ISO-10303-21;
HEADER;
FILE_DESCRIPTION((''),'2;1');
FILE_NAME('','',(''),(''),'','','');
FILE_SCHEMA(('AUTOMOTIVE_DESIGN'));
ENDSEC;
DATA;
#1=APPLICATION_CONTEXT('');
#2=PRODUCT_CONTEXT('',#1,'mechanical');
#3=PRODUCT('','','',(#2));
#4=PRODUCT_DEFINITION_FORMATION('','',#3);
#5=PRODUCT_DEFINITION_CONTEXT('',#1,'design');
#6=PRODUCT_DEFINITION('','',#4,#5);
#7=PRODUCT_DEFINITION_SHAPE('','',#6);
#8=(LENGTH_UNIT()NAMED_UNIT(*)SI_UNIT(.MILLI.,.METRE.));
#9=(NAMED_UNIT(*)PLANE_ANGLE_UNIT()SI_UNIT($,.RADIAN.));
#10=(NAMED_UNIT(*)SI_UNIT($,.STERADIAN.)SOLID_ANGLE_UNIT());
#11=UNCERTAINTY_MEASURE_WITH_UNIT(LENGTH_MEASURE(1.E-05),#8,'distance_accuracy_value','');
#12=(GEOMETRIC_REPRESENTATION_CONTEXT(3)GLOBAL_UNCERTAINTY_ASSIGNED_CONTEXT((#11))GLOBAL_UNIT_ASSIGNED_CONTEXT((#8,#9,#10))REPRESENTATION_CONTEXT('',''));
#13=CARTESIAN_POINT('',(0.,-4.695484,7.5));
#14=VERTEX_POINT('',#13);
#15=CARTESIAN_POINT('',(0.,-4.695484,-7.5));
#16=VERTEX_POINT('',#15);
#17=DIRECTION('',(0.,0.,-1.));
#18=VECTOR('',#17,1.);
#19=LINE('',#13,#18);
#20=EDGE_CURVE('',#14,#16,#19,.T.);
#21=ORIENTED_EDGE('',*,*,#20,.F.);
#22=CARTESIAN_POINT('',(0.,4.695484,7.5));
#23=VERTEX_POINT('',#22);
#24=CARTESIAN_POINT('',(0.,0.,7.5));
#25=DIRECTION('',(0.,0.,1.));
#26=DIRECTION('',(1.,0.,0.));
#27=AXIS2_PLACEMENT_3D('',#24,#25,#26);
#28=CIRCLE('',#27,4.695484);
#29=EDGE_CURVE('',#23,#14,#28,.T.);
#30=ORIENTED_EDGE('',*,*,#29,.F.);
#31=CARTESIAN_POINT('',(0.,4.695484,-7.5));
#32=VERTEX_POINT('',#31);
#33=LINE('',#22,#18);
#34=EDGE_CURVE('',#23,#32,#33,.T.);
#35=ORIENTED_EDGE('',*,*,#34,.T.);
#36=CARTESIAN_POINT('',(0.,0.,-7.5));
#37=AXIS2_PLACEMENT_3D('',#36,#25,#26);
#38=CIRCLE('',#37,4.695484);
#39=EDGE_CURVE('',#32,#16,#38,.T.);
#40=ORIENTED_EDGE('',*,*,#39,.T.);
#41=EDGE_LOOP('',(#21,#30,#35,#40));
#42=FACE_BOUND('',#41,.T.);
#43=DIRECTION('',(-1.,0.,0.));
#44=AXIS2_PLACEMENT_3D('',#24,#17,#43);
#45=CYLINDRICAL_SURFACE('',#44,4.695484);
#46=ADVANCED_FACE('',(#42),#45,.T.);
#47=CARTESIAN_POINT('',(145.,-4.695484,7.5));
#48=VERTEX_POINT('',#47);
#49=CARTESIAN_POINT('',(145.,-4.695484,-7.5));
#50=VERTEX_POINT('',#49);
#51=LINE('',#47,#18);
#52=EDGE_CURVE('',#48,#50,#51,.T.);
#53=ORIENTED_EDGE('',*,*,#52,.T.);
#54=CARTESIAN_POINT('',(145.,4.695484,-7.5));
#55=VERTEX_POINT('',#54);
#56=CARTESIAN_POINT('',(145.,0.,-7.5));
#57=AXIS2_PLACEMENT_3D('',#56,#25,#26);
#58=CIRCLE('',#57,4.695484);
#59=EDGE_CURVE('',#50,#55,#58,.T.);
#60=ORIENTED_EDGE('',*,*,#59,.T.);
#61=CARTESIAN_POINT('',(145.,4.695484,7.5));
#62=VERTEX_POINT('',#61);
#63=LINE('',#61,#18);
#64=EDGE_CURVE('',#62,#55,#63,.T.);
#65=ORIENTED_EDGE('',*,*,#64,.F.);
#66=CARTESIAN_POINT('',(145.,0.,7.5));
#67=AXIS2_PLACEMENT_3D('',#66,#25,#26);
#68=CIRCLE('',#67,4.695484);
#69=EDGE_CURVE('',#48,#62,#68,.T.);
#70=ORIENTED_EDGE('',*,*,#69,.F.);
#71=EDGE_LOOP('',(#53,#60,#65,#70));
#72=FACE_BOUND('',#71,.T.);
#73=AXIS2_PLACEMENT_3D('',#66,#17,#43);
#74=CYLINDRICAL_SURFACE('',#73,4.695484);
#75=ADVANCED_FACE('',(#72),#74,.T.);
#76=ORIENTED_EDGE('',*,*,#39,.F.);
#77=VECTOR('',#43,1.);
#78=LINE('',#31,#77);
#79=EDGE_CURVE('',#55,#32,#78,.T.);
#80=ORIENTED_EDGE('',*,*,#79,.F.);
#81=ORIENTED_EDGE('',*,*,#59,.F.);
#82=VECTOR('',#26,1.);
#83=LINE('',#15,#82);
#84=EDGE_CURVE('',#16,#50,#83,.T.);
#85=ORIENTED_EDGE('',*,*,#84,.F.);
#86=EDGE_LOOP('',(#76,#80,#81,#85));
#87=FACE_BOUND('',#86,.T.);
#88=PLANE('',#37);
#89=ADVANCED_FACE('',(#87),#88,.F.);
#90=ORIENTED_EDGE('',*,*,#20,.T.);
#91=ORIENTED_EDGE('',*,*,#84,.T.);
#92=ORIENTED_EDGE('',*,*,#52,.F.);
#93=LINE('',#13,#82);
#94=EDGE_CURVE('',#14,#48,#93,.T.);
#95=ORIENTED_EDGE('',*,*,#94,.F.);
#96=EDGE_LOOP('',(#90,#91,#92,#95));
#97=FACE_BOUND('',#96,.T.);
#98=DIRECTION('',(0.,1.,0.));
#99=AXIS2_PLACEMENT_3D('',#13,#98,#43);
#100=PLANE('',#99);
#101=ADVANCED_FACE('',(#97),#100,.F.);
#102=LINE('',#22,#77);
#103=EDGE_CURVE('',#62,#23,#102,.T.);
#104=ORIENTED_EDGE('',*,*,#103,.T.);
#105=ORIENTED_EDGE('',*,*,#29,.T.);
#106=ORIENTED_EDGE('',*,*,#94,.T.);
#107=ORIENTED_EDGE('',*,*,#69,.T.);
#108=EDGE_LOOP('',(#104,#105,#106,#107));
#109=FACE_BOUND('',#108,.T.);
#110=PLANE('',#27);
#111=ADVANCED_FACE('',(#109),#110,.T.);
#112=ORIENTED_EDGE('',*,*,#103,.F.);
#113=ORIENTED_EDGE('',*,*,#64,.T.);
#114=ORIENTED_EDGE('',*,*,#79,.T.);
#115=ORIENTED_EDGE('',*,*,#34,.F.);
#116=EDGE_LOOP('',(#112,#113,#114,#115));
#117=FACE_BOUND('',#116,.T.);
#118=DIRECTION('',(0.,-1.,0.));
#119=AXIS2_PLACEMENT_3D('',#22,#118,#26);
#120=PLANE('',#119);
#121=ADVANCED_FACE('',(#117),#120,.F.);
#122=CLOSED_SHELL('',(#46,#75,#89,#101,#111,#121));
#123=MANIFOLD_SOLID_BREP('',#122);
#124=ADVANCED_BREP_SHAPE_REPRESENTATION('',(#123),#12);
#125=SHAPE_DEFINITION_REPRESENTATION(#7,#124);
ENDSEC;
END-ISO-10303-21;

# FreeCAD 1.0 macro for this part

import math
import FreeCAD as App
import Part
import Sketcher
Q = App.Units.Quantity

doc = App.newDocument("Part")
body = doc.addObject("PartDesign::Body", "Body")

sketch1 = doc.addObject("Sketcher::SketchObject", "Sketch")
body.addObject(sketch1)
sketch1.AttachmentSupport = (doc.XY_Plane, [""])
sketch1.MapMode = "FlatFace"
sketch1.addGeometry([
    Part.LineSegment(App.Vector(145, 4.7, 0), App.Vector(0, 4.7, 0)),
    Part.ArcOfCircle(Part.Circle(App.Vector(0, 0, 0), App.Vector(0, 0, 1), 4.7), math.radians(90), math.radians(270)),
    Part.LineSegment(App.Vector(0, -4.7, 0), App.Vector(145, -4.7, 0)),
    Part.ArcOfCircle(Part.Circle(App.Vector(145, 0, 0), App.Vector(0, 0, 1), 4.7), math.radians(-90), math.radians(90)),
], False)
sketch1.addConstraint([
    Sketcher.Constraint("Tangent", 0, 2, 1, 1),
    Sketcher.Constraint("Tangent", 1, 2, 2, 1),
    Sketcher.Constraint("Tangent", 2, 2, 3, 1),
    Sketcher.Constraint("Tangent", 3, 2, 0, 1),
    Sketcher.Constraint("Horizontal", 0),
    Sketcher.Constraint("Horizontal", 2),
    Sketcher.Constraint("Coincident", 1, 3, -1, 1),
    Sketcher.Constraint("DistanceX", 0, 2, 0, 1, Q("145 mm")),
    Sketcher.Constraint("Radius", 1, Q("4.695484 mm")),
])
pad1 = doc.addObject("PartDesign::Pad", "Pad")
body.addObject(pad1)
pad1.Profile = sketch1
pad1.Length = 15
pad1.Midplane = True

doc.recompute()
